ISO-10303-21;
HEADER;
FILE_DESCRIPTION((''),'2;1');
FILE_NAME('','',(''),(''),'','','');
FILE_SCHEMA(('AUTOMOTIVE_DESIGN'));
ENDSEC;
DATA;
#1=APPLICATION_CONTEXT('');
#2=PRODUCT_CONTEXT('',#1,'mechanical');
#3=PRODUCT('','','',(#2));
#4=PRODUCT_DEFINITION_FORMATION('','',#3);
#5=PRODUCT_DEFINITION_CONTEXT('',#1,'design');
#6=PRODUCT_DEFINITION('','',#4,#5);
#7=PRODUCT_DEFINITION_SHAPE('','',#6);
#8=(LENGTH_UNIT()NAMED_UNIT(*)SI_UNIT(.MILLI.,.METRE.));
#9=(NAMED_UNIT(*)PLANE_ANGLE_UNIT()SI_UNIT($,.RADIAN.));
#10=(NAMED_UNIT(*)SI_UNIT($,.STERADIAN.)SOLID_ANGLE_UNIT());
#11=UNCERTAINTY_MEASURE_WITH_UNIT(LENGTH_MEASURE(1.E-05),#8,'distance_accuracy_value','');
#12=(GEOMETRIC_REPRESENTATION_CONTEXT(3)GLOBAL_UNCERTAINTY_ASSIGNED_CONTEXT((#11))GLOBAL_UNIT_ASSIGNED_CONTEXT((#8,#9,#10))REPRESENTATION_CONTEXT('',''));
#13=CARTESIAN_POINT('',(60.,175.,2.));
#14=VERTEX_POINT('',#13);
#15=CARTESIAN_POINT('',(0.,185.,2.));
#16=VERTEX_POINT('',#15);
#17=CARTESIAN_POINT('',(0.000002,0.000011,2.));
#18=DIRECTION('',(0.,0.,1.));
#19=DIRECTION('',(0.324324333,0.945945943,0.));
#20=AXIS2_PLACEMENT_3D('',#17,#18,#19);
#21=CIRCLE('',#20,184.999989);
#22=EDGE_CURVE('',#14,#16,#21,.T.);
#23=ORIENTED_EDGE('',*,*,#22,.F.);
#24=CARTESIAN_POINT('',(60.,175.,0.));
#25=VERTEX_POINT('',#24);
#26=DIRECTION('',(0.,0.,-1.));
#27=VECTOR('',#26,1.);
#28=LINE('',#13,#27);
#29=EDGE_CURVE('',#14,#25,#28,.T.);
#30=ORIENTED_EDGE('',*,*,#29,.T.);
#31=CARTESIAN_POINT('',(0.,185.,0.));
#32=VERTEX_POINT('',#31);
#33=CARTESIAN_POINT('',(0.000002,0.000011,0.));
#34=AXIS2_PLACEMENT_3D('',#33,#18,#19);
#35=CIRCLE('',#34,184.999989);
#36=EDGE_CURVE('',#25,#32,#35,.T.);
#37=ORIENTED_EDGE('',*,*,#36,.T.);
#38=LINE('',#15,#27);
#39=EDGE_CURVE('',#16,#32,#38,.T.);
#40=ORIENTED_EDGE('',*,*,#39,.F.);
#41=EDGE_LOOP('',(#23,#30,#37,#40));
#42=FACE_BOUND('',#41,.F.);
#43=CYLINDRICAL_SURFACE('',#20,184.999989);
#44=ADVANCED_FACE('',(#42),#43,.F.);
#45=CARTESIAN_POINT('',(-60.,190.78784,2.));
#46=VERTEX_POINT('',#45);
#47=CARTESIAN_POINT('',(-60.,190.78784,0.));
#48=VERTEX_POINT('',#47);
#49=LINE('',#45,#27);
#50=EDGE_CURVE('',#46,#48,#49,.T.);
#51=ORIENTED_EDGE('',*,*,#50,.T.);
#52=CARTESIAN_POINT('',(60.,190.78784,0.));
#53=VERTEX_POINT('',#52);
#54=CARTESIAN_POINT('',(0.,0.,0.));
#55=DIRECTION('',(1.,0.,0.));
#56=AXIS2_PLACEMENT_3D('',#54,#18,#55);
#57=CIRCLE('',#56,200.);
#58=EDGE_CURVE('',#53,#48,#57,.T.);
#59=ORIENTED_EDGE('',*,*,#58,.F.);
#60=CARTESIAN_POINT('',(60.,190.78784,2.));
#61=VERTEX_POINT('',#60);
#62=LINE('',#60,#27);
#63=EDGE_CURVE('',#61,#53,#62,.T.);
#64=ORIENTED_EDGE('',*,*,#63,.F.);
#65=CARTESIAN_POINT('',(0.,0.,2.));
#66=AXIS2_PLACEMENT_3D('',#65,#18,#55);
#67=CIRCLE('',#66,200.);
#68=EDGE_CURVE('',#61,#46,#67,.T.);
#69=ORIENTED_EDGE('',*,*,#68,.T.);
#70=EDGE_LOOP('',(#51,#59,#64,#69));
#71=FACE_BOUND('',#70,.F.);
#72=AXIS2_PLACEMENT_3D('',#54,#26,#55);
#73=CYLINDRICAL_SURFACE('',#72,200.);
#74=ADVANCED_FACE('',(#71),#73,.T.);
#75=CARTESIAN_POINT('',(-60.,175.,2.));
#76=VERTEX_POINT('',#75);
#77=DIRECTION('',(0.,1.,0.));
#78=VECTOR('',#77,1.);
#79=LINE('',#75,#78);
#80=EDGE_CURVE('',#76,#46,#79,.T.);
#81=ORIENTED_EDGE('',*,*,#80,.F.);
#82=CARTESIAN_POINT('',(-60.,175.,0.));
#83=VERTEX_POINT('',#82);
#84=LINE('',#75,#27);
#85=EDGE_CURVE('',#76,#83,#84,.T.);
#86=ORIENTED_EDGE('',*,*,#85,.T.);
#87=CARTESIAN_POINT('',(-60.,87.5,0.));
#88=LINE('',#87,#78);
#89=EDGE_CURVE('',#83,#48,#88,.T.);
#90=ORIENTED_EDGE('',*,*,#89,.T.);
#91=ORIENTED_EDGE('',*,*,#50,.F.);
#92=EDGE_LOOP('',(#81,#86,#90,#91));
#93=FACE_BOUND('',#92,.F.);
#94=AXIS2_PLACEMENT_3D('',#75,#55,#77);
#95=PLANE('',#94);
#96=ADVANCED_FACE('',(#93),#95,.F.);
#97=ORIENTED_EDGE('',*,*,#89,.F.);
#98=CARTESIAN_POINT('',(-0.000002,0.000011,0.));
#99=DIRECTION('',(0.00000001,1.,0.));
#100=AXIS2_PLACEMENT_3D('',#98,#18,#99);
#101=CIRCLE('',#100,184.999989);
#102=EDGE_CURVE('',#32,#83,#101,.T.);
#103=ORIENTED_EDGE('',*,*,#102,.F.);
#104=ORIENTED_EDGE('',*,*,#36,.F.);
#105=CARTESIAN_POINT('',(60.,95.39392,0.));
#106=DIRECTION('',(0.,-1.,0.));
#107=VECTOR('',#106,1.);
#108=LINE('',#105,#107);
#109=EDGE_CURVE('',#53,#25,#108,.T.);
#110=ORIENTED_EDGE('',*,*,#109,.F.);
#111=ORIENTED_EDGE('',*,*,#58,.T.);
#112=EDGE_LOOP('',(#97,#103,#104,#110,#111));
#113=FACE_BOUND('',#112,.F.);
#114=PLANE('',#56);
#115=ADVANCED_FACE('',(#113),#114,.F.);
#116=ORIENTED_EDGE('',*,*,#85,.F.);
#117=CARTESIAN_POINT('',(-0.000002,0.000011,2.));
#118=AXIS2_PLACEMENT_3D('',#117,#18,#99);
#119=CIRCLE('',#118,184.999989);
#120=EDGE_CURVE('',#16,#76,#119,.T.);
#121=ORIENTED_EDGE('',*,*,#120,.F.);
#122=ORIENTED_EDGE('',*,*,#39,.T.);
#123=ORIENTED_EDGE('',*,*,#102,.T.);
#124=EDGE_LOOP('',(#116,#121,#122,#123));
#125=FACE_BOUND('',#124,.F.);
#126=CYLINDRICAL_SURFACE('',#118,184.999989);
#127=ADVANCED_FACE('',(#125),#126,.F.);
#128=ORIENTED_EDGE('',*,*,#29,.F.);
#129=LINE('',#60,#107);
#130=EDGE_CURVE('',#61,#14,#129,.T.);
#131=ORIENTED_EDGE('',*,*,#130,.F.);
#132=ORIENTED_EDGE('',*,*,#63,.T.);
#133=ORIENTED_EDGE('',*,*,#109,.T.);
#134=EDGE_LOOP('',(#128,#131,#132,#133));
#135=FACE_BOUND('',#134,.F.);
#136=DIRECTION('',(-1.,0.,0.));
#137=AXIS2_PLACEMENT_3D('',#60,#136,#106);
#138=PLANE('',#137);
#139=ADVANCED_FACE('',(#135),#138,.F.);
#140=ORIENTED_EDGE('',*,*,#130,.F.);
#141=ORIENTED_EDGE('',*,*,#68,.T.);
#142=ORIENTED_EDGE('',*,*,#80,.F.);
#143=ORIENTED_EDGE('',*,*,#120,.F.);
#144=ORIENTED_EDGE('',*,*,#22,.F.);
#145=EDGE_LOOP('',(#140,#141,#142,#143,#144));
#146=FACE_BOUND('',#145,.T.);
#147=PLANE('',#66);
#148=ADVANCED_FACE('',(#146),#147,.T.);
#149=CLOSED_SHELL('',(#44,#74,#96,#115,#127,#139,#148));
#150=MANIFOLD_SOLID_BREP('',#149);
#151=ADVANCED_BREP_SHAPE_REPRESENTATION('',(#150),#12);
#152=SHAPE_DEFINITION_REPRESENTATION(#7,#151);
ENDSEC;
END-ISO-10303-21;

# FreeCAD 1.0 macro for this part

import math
import FreeCAD as App
import Part
import Sketcher
Q = App.Units.Quantity

doc = App.newDocument("Part")
params = doc.addObject("Spreadsheet::Sheet", "Params")
for row, (alias, value) in enumerate([
    ("sketch1_diameter", "400 mm"),
    ("pad1_length", "2 mm"),
    ("sketch2_radius", "200 mm"),
    ("pocket1_length", "25 mm"),
], start=1):
    params.set(f"A{row}", alias)
    params.set(f"B{row}", "=" + value)
    params.setAlias(f"B{row}", alias)

body = doc.addObject("PartDesign::Body", "Body")

# Sketch on XY plane
sketch1 = body.newObject("Sketcher::SketchObject", "Sketch")
sketch1.AttachmentSupport = (doc.getObject("XY_Plane"), [""])
sketch1.MapMode = "FlatFace"
sketch1.addGeometry(Part.Circle(App.Vector(0, 0, 0), App.Vector(0, 0, 1), 200), False)
sketch1.addConstraint([
    Sketcher.Constraint("Coincident", 0, 3, -1, 1),
    Sketcher.Constraint("Diameter", 0, Q("400 mm")),
])
sketch1.setExpression("Constraints[1]", "Params.sketch1_diameter")
pad1 = body.newObject("PartDesign::Pad", "Pad")
pad1.Profile = sketch1
pad1.setExpression("Length", "Params.pad1_length")

# Sketch on XY plane
sketch2 = body.newObject("Sketcher::SketchObject", "Sketch001")
sketch2.AttachmentSupport = (doc.getObject("XY_Plane"), [""])
sketch2.MapMode = "FlatFace"
sketch2.AttachmentOffset = App.Placement(App.Vector(0, 0, 2), App.Rotation())
sketch2.addGeometry([
    Part.ArcOfCircle(Part.Circle(App.Vector(0, 0, 0), App.Vector(0, 0, 1), 185), math.radians(71.08), math.radians(90)),  # 0
    Part.ArcOfCircle(Part.Circle(App.Vector(0, 0, 0), App.Vector(0, 0, 1), 185), math.radians(90), math.radians(108.92)),  # 1
    Part.LineSegment(App.Vector(-60, 175, 0), App.Vector(-60, 191, 0)),  # 2
    Part.ArcOfCircle(Part.Circle(App.Vector(0, 0, 0), App.Vector(0, 0, 1), 200), math.radians(107), math.radians(360)),  # 3
    Part.ArcOfCircle(Part.Circle(App.Vector(0, 0, 0), App.Vector(0, 0, 1), 200), math.radians(0), math.radians(73)),  # 4
    Part.LineSegment(App.Vector(60, 191, 0), App.Vector(60, 175, 0)),  # 5
], False)
sketch2.addConstraint([
    Sketcher.Constraint("Tangent", 0, 2, 1, 1),
    Sketcher.Constraint("Coincident", 1, 2, 2, 1),
    Sketcher.Constraint("Coincident", 2, 2, 3, 1),
    Sketcher.Constraint("Tangent", 3, 2, 4, 1),
    Sketcher.Constraint("Coincident", 4, 2, 5, 1),
    Sketcher.Constraint("Coincident", 5, 2, 0, 1),
    Sketcher.Constraint("Vertical", 2),
    Sketcher.Constraint("Vertical", 5),
    Sketcher.Constraint("Coincident", 3, 3, -1, 1),
    Sketcher.Constraint("Coincident", 4, 3, 0, 3),
    Sketcher.Constraint("Equal", 0, 1),
    Sketcher.Constraint("Equal", 3, 4),
    Sketcher.Constraint("PointOnObject", 0, 2, -2),
    Sketcher.Constraint("PointOnObject", 3, 2, -1),
    Sketcher.Constraint("Horizontal", 2, 2, 4, 2),
    Sketcher.Constraint("Radius", 3, Q("200 mm")),
    Sketcher.Constraint("DistanceY", -1, 1, 0, 2, Q("185 mm")),
    Sketcher.Constraint("DistanceX", 1, 2, -1, 1, Q("60 mm")),
])
sketch2.setExpression("Constraints[15]", "Params.sketch2_radius")
pocket1 = body.newObject("PartDesign::Pocket", "Pocket")
pocket1.Profile = sketch2
pocket1.setExpression("Length", "Params.pocket1_length")

doc.recompute()
